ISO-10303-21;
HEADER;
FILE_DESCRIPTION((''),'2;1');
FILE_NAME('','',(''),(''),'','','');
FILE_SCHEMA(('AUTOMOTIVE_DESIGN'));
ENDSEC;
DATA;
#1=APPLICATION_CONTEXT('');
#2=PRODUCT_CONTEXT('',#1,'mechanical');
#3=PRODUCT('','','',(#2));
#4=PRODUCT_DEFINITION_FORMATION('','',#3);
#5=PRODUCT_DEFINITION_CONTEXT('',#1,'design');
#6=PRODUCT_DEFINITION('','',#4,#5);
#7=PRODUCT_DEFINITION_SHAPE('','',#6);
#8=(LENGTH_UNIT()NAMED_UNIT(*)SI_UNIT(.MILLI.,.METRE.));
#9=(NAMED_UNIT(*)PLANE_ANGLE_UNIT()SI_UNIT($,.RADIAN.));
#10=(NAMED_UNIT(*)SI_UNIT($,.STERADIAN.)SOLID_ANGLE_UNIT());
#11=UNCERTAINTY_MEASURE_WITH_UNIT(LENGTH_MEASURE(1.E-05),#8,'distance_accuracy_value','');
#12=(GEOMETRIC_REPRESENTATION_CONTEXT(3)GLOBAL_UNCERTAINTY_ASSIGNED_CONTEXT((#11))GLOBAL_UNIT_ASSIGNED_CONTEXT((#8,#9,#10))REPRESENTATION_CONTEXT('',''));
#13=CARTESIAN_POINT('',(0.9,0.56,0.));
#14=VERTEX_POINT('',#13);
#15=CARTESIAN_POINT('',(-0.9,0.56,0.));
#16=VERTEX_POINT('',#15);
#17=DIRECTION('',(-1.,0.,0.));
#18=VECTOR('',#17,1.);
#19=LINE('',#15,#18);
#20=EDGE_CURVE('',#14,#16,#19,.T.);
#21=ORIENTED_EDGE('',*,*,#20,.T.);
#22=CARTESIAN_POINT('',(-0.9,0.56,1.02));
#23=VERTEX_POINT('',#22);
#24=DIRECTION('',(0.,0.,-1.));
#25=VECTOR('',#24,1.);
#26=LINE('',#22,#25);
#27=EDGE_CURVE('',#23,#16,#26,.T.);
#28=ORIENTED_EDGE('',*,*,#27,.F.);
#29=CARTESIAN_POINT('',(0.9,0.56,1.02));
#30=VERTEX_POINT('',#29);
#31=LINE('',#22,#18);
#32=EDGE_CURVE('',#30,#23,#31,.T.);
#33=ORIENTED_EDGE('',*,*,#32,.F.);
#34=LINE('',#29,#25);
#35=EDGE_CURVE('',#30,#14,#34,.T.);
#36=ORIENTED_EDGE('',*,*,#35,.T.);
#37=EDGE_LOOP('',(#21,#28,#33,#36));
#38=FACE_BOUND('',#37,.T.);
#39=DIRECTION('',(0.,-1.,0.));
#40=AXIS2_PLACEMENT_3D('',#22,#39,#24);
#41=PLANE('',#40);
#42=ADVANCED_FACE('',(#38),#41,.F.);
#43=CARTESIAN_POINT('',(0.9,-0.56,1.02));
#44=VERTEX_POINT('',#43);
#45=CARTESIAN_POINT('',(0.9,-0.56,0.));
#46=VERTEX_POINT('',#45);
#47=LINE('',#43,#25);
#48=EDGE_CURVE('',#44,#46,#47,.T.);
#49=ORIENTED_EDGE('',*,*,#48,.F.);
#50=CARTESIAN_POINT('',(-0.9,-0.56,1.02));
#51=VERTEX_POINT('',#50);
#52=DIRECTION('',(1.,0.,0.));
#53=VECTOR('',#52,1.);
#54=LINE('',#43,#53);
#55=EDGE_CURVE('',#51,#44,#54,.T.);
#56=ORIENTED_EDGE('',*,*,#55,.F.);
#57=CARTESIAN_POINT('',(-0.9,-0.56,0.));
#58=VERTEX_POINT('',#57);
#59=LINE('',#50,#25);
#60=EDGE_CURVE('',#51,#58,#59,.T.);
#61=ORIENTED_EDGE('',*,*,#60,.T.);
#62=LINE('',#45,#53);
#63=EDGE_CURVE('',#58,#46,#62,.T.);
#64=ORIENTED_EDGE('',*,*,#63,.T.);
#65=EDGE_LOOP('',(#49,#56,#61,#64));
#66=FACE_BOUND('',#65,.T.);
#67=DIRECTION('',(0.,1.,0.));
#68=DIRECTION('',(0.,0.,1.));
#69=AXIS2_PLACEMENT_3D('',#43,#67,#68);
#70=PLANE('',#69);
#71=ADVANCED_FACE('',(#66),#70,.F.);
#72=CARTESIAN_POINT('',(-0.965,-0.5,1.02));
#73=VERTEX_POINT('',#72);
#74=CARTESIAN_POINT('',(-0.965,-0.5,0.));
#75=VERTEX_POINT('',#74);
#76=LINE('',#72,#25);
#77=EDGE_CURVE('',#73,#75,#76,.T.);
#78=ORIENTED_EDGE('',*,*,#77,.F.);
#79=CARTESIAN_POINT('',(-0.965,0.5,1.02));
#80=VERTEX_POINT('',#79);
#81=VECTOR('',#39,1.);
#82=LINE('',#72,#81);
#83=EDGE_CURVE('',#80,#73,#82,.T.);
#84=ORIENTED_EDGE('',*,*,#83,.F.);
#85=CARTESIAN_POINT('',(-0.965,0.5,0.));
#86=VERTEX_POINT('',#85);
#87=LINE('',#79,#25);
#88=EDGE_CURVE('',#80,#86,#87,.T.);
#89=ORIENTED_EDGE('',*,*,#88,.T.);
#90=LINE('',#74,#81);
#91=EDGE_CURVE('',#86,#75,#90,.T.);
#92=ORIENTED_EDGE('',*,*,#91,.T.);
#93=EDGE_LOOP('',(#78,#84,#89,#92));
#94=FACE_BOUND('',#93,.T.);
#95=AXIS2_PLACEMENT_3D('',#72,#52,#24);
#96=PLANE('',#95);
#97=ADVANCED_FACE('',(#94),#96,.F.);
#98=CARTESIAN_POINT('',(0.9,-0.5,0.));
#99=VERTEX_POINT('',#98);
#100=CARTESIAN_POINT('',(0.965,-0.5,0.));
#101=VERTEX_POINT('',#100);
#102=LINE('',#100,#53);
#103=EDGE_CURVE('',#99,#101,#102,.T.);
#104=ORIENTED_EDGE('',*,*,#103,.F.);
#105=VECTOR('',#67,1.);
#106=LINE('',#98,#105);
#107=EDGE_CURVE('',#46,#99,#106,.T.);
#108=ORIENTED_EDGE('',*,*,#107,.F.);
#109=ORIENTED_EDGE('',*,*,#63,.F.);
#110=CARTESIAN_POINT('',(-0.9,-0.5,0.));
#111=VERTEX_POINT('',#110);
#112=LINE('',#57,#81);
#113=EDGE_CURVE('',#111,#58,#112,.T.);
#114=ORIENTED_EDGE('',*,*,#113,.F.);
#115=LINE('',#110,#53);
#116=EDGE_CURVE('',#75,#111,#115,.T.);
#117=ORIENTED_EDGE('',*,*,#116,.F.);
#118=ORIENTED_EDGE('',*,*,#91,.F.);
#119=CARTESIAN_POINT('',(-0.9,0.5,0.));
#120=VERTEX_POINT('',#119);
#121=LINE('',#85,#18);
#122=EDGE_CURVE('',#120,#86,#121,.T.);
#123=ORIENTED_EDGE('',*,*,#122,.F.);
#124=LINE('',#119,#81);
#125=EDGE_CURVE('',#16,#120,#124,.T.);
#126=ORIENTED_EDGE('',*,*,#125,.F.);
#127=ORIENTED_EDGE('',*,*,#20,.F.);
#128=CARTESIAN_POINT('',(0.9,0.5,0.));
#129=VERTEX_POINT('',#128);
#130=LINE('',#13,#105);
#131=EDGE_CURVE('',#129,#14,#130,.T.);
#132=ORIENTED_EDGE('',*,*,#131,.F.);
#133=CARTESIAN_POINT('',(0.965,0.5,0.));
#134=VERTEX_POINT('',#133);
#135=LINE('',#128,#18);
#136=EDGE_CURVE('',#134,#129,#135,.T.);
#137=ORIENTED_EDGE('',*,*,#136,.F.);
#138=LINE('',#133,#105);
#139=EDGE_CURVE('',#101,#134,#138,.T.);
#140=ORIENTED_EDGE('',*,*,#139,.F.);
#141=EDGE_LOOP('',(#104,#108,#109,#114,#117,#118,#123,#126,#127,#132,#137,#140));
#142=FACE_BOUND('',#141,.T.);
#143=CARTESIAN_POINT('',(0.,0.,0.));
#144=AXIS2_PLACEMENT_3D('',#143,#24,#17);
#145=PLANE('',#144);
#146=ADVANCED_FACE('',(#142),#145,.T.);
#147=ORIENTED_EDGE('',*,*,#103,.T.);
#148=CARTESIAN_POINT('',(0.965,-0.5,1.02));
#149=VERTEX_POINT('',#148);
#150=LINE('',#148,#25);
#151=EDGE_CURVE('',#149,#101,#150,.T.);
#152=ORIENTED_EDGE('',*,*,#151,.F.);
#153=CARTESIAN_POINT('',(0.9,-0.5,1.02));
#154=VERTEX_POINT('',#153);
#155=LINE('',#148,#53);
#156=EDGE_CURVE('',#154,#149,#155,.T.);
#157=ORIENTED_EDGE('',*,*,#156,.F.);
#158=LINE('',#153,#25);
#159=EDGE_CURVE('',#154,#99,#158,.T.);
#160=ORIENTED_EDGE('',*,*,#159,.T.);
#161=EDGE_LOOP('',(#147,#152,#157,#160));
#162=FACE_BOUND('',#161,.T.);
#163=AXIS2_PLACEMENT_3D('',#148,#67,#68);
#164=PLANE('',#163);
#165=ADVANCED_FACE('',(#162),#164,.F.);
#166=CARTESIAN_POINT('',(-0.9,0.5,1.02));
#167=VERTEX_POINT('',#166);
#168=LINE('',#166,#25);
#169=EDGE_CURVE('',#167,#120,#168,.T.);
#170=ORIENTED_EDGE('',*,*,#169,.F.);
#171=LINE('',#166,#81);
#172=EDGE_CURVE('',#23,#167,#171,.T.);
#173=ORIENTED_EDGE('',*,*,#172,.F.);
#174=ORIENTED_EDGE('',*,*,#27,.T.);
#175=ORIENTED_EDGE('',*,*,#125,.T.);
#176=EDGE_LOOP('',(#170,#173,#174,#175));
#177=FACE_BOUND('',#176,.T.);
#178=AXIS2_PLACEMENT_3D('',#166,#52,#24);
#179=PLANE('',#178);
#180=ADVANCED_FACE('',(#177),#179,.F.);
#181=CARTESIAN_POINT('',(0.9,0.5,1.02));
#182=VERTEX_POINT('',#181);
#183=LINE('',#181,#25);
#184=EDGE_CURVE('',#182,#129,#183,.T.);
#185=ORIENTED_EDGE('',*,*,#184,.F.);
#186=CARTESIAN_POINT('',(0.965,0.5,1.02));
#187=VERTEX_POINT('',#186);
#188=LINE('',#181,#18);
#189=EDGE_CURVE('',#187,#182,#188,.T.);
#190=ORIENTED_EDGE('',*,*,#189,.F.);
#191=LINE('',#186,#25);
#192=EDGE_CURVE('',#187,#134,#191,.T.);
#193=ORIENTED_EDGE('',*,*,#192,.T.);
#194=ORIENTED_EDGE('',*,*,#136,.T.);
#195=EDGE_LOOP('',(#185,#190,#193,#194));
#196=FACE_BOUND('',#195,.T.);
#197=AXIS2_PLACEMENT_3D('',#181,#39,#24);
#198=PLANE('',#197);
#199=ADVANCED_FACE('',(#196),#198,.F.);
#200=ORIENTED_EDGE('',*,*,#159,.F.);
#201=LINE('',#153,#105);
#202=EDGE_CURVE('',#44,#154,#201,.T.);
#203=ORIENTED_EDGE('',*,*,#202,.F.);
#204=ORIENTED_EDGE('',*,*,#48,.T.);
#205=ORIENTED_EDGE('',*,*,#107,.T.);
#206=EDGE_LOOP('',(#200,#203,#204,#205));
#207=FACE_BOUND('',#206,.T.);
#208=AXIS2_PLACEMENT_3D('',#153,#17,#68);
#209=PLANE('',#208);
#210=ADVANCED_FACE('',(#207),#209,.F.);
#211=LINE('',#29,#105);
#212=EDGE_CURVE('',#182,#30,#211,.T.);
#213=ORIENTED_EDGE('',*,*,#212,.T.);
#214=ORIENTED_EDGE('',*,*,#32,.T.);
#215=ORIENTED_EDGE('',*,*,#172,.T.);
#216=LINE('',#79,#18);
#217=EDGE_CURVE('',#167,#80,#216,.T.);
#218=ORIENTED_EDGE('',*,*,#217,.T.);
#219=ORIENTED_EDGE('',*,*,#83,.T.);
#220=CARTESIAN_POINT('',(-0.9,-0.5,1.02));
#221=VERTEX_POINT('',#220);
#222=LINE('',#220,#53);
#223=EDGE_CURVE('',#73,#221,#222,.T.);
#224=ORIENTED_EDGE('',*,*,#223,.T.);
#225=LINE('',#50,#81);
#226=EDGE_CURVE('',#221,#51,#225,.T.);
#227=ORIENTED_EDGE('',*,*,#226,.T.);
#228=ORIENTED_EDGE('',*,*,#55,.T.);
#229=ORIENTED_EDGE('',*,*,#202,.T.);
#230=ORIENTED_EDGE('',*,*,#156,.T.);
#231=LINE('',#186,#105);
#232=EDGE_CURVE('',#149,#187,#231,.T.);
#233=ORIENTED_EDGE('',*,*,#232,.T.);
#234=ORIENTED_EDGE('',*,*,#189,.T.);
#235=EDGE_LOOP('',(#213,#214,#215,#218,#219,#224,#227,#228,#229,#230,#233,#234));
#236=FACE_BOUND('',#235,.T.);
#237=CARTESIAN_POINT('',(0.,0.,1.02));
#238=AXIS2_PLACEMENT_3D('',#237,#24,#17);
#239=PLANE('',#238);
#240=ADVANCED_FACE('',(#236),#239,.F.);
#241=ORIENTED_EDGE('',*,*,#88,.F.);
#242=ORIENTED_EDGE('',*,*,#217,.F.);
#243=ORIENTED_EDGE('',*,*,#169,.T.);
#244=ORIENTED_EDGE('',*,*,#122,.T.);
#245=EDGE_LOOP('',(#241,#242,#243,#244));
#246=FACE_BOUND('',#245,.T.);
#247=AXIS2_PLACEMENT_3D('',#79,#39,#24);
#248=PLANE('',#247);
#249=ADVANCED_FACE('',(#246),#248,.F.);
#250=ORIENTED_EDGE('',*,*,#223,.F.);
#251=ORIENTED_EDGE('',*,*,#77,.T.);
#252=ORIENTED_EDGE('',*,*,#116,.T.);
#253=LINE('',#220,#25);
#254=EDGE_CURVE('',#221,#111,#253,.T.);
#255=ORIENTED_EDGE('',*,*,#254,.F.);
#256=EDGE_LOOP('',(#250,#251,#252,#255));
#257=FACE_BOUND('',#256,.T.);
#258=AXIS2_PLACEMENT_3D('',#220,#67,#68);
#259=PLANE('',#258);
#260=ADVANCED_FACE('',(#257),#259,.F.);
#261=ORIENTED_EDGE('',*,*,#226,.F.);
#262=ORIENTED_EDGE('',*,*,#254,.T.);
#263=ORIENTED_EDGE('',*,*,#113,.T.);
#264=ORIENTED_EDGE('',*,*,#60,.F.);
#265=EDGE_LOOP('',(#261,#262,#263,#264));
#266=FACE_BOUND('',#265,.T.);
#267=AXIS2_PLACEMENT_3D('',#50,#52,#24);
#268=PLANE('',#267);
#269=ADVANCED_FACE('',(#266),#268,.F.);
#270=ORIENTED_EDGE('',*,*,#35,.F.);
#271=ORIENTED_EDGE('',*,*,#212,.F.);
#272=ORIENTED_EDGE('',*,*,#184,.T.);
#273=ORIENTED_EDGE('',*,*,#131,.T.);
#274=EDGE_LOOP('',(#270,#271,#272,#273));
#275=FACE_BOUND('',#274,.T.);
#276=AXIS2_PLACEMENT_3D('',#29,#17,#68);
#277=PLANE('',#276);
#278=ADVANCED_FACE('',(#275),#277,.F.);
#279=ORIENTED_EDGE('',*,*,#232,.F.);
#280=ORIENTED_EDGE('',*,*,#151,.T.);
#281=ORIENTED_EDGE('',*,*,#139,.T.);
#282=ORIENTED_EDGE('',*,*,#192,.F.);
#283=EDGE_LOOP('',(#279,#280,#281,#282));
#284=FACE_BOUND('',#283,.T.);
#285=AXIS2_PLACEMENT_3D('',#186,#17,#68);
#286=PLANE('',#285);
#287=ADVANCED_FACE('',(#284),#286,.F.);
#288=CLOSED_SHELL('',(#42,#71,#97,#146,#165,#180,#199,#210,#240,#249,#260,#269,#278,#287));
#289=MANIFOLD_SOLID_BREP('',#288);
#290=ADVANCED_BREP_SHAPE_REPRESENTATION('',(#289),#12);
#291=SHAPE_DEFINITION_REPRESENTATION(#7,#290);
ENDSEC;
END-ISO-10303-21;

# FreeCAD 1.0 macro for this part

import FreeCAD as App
import Part
import Sketcher

V = App.Vector

doc = App.newDocument("Part")
body = doc.addObject("PartDesign::Body", "Body")

sketch1 = body.newObject("Sketcher::SketchObject", "Sketch")
sketch1.AttachmentSupport = (doc.getObject("XY_Plane"), [""])
sketch1.MapMode = "FlatFace"
sketch1.addGeometry([
    Part.LineSegment(V(0.9, -0.5, 0), V(0.96, -0.5, 0)),
    Part.LineSegment(V(0.96, -0.5, 0), V(0.96, 0.5, 0)),
    Part.LineSegment(V(0.96, 0.5, 0), V(0.9, 0.5, 0)),
    Part.LineSegment(V(0.9, 0.5, 0), V(0.9, 0.56, 0)),
    Part.LineSegment(V(0.9, 0.56, 0), V(-0.9, 0.56, 0)),
    Part.LineSegment(V(-0.9, 0.56, 0), V(-0.9, 0.5, 0)),
    Part.LineSegment(V(-0.9, 0.5, 0), V(-0.96, 0.5, 0)),
    Part.LineSegment(V(-0.96, 0.5, 0), V(-0.96, -0.5, 0)),
    Part.LineSegment(V(-0.96, -0.5, 0), V(-0.9, -0.5, 0)),
    Part.LineSegment(V(-0.9, -0.5, 0), V(-0.9, -0.56, 0)),
    Part.LineSegment(V(-0.9, -0.56, 0), V(0.9, -0.56, 0)),
    Part.LineSegment(V(0.9, -0.56, 0), V(0.9, -0.5, 0)),
], False)
sketch1.addConstraint([
    Sketcher.Constraint("Coincident", 0, 2, 1, 1),
    Sketcher.Constraint("Coincident", 1, 2, 2, 1),
    Sketcher.Constraint("Coincident", 2, 2, 3, 1),
    Sketcher.Constraint("Coincident", 3, 2, 4, 1),
    Sketcher.Constraint("Coincident", 4, 2, 5, 1),
    Sketcher.Constraint("Coincident", 5, 2, 6, 1),
    Sketcher.Constraint("Coincident", 6, 2, 7, 1),
    Sketcher.Constraint("Coincident", 7, 2, 8, 1),
    Sketcher.Constraint("Coincident", 8, 2, 9, 1),
    Sketcher.Constraint("Coincident", 9, 2, 10, 1),
    Sketcher.Constraint("Coincident", 10, 2, 11, 1),
    Sketcher.Constraint("Coincident", 11, 2, 0, 1),
    Sketcher.Constraint("Horizontal", 0),
    Sketcher.Constraint("Vertical", 1),
    Sketcher.Constraint("Horizontal", 2),
    Sketcher.Constraint("Vertical", 3),
    Sketcher.Constraint("Horizontal", 4),
    Sketcher.Constraint("Vertical", 5),
    Sketcher.Constraint("Horizontal", 6),
    Sketcher.Constraint("Vertical", 7),
    Sketcher.Constraint("Horizontal", 8),
    Sketcher.Constraint("Vertical", 9),
    Sketcher.Constraint("Horizontal", 10),
    Sketcher.Constraint("Vertical", 11),
    Sketcher.Constraint("Symmetric", 0, 2, 6, 2, -1, 1),
    Sketcher.Constraint("Symmetric", 2, 2, 8, 2, -1, 1),
    Sketcher.Constraint("Symmetric", 4, 2, 10, 2, -1, 1),
    Sketcher.Constraint("Symmetric", 2, 2, 5, 2, -2),
    Sketcher.Constraint("DistanceY", 1, 1, 1, 2, 1.0),
    Sketcher.Constraint("DistanceX", 4, 2, 4, 1, 1.8),
    Sketcher.Constraint("DistanceY", 3, 1, 3, 2, 0.06),
    Sketcher.Constraint("DistanceX", 0, 1, 0, 2, 0.065),
])
pad1 = body.newObject("PartDesign::Pad", "Pad")
pad1.Profile = sketch1
pad1.Length = 1.02

doc.recompute()
